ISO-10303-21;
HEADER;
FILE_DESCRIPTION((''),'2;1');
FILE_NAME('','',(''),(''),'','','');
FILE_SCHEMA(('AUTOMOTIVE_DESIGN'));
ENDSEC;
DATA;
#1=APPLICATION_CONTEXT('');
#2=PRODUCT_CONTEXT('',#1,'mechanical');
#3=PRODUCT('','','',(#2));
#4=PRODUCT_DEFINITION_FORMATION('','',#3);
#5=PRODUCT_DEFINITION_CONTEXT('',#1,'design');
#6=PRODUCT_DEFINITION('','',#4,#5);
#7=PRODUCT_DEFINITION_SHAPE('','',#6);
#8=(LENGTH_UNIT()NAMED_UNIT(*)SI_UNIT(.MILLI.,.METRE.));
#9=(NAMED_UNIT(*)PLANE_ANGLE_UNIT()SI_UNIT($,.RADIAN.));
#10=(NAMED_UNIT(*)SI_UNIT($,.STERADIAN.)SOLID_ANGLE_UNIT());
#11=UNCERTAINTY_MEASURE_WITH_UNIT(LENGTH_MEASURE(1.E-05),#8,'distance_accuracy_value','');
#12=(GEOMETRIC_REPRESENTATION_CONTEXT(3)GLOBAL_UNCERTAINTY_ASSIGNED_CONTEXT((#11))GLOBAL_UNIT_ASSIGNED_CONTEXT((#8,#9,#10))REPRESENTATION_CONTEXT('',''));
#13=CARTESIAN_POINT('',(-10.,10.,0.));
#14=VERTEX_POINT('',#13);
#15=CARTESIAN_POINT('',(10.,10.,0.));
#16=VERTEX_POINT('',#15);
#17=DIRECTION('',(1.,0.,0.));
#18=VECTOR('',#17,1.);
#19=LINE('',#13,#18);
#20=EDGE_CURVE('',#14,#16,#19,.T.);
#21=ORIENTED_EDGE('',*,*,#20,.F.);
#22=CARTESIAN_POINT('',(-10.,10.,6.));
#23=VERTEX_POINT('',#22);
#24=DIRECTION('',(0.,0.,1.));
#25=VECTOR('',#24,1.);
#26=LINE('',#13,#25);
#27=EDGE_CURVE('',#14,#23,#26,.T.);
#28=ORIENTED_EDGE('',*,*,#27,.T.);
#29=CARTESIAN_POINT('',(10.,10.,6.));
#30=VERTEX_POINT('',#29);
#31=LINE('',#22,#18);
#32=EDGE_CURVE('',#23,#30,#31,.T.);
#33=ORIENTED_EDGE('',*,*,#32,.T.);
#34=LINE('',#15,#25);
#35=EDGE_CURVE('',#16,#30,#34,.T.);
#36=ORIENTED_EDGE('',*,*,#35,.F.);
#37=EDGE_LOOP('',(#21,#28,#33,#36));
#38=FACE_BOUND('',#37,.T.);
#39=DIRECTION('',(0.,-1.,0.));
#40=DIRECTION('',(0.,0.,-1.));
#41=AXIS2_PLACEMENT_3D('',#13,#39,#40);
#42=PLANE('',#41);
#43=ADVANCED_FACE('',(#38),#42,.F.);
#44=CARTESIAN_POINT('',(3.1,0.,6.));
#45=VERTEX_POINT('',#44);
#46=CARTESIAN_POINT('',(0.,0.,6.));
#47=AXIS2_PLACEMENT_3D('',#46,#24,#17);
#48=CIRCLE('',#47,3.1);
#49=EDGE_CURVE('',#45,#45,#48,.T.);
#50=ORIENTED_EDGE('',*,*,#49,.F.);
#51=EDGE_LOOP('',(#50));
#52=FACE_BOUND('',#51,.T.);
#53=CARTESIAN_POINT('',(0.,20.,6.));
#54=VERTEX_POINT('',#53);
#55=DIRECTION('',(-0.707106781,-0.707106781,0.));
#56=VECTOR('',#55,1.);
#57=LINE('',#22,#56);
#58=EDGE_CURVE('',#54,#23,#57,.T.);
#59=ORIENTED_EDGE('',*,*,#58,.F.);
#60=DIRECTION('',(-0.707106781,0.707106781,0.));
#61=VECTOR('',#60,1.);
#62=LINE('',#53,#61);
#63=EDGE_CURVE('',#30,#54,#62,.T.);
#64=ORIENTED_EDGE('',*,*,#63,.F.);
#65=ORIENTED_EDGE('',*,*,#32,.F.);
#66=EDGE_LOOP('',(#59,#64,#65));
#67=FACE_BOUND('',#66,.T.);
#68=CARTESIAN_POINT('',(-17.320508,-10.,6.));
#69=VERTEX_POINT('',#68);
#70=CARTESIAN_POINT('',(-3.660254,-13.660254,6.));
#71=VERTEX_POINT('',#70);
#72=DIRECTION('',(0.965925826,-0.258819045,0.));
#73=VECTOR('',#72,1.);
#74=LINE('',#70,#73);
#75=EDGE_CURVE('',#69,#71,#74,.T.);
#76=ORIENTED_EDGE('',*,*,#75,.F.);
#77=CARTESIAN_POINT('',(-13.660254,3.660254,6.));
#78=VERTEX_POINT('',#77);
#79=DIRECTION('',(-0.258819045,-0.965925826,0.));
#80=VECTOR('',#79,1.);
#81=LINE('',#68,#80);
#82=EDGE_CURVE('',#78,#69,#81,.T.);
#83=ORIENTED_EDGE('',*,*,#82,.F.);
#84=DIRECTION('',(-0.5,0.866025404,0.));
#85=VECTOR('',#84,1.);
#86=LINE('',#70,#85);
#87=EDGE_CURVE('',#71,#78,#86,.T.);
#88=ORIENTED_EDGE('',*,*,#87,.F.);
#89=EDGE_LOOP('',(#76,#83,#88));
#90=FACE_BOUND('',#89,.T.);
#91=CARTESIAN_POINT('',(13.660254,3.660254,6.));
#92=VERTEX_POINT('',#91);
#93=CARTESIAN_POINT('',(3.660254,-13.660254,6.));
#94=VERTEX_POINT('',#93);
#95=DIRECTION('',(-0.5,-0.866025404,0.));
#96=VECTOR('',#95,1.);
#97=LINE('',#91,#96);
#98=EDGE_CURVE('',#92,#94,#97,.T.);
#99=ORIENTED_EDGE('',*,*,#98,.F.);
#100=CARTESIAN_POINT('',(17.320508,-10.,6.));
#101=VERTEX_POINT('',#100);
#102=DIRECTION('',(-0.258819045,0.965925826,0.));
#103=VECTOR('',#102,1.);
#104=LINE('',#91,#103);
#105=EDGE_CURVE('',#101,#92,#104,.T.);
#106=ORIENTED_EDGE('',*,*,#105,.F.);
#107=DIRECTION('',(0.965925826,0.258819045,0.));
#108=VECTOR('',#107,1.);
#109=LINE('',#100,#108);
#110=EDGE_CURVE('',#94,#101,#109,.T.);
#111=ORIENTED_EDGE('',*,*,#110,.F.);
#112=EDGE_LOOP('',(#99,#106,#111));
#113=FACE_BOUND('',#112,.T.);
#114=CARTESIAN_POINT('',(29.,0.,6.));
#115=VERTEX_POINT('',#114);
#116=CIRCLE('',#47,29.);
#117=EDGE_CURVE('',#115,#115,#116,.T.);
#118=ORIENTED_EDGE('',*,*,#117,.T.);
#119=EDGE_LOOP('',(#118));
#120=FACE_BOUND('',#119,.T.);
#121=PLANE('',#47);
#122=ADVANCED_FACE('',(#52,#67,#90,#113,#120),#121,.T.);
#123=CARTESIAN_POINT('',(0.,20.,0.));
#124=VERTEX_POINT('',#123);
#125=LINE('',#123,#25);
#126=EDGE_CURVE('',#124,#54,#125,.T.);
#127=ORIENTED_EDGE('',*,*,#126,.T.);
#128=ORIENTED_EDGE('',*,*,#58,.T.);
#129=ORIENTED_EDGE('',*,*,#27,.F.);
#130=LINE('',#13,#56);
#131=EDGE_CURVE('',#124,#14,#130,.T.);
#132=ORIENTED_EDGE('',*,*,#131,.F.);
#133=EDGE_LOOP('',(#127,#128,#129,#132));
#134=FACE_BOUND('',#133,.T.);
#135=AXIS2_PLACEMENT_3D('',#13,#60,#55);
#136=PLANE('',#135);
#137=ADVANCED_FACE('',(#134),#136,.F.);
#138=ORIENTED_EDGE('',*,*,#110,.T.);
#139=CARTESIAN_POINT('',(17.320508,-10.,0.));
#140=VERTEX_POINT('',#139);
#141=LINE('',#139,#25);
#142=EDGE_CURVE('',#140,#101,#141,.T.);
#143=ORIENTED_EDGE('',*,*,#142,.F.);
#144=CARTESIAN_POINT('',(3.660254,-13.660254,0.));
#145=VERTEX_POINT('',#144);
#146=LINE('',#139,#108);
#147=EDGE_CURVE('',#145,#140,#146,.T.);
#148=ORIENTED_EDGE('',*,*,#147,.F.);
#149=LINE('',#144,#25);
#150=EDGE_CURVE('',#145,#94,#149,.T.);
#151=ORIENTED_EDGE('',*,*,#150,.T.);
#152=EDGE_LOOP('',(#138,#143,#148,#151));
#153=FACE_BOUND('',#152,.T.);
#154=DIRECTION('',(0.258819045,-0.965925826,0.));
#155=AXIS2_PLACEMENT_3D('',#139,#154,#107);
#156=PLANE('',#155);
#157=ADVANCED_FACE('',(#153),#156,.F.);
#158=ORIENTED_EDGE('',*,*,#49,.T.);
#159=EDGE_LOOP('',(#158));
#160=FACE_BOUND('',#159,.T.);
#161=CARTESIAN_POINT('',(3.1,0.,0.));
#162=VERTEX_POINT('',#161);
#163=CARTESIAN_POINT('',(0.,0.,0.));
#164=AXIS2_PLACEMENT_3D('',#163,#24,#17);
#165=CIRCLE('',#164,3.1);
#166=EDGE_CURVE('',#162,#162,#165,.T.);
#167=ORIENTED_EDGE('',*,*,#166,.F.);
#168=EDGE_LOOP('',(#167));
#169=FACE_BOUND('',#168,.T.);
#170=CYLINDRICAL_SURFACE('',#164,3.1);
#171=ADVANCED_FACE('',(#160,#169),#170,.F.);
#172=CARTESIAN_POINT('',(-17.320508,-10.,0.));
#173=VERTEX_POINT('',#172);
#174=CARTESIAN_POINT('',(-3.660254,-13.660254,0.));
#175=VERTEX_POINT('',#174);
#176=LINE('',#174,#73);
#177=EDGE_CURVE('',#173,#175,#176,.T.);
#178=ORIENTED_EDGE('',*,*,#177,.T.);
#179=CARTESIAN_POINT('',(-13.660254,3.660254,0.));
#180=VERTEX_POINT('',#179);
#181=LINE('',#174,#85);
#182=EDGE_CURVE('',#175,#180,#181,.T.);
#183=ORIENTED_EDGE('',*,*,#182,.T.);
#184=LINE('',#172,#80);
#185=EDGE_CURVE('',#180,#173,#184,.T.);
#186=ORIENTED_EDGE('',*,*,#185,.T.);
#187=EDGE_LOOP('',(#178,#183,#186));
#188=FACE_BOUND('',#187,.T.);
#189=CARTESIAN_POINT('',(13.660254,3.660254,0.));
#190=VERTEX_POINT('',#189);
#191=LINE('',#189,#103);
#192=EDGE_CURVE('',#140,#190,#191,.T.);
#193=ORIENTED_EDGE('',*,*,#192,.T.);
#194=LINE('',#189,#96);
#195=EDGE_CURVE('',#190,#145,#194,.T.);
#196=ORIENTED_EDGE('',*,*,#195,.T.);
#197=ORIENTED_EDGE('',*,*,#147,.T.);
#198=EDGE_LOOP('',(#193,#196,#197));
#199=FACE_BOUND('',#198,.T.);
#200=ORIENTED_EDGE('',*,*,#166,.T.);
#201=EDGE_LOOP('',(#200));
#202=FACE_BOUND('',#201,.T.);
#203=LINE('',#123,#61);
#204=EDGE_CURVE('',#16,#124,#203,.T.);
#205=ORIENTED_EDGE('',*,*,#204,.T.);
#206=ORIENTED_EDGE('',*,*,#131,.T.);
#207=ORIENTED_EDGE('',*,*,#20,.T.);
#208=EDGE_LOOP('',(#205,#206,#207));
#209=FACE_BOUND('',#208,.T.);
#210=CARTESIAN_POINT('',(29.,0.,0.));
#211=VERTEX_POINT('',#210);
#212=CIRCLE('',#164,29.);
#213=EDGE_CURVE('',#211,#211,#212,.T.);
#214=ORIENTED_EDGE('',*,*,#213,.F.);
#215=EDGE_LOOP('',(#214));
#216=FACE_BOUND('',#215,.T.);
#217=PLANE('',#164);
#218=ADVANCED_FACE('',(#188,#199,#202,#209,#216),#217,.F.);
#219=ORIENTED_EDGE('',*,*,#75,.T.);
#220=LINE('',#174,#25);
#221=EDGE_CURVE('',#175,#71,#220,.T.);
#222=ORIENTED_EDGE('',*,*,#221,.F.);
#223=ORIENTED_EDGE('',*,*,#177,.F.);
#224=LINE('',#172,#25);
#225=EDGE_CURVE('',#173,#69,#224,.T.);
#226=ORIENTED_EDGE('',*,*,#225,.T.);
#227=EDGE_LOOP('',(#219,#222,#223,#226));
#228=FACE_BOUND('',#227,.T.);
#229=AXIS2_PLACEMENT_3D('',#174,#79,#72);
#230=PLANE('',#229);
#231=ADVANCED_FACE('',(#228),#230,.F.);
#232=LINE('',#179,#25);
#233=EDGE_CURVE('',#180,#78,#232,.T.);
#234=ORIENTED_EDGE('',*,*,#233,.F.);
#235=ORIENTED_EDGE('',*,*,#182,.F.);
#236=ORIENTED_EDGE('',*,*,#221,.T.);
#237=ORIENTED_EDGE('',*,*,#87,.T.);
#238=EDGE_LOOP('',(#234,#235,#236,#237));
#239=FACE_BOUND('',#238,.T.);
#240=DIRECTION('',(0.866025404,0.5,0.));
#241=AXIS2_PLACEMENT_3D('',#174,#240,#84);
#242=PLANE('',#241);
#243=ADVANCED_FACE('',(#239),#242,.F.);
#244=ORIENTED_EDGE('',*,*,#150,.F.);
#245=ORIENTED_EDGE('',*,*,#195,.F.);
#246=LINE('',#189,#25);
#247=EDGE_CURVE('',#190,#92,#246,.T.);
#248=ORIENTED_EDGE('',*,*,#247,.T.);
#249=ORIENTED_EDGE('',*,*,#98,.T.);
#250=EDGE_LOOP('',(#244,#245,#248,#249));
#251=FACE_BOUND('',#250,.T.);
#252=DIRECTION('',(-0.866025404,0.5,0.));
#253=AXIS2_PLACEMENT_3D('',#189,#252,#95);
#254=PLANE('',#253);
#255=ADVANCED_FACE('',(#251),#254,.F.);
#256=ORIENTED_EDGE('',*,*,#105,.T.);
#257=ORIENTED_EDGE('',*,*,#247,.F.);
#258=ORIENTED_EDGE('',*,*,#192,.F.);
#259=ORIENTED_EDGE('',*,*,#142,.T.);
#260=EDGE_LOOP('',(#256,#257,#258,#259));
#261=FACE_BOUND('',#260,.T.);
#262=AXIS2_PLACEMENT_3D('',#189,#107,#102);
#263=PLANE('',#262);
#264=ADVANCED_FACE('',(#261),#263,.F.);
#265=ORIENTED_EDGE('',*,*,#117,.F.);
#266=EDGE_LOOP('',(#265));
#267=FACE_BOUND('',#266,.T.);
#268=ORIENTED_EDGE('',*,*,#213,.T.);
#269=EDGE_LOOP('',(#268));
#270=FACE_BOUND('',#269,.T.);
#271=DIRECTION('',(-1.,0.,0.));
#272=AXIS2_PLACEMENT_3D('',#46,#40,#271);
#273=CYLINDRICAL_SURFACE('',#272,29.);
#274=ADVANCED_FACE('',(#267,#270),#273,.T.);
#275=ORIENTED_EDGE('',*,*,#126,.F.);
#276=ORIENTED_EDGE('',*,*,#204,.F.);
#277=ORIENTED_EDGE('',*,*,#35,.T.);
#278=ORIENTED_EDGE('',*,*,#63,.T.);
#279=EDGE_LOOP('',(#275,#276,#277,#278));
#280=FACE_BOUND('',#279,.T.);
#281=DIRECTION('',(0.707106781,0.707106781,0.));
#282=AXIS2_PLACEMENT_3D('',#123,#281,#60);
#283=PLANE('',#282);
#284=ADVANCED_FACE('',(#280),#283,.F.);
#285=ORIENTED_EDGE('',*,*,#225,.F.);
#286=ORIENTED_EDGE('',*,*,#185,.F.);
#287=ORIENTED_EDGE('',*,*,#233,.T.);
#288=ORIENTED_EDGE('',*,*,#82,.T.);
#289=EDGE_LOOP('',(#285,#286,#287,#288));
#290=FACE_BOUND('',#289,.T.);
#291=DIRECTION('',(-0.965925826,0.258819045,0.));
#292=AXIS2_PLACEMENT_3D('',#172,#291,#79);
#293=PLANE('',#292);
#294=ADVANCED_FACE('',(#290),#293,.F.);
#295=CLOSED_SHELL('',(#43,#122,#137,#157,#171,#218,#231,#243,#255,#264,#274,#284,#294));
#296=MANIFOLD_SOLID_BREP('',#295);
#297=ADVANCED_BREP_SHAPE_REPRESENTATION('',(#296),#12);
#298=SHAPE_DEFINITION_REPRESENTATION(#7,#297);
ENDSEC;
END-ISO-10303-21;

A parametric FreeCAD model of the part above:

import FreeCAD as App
import Part
import Sketcher

V = App.Vector
Q = App.Units.Quantity

doc = App.newDocument("Part")
body = doc.addObject("PartDesign::Body", "Body")

sketch1 = body.newObject("Sketcher::SketchObject", "Sketch")
sketch1.AttachmentSupport = (doc.getObject("XY_Plane"), [""])
sketch1.MapMode = "FlatFace"
sketch1.addGeometry(Part.Circle(V(0, 0, 0), V(0, 0, 1), 29), False)
sketch1.addConstraint([
    Sketcher.Constraint("Coincident", 0, 3, -1, 1),
    Sketcher.Constraint("Diameter", 0, 58.0),
])
pad1 = body.newObject("PartDesign::Pad", "Pad")
pad1.Profile = sketch1
pad1.Length = 6

sketch2 = body.newObject("Sketcher::SketchObject", "Sketch001")
sketch2.AttachmentSupport = (doc.getObject("XY_Plane"), [""])
sketch2.MapMode = "FlatFace"
sketch2.AttachmentOffset = App.Placement(V(0, 0, 6), App.Rotation())
sketch2.addGeometry(Part.Circle(V(0, 0, 0), V(0, 0, 1), 3.1), False)
sketch2.addConstraint([
    Sketcher.Constraint("Coincident", 0, 3, -1, 1),
    Sketcher.Constraint("Diameter", 0, 6.2),
])
pocket1 = body.newObject("PartDesign::Pocket", "Pocket")
pocket1.Profile = sketch2
pocket1.Type = "ThroughAll"

sketch3 = body.newObject("Sketcher::SketchObject", "Sketch002")
sketch3.AttachmentSupport = (doc.getObject("XY_Plane"), [""])
sketch3.MapMode = "FlatFace"
sketch3.AttachmentOffset = App.Placement(V(0, 0, 6), App.Rotation())
sketch3.addGeometry([
    Part.LineSegment(V(0, 20, 0), V(-10, 10, 0)),
    Part.LineSegment(V(-10, 10, 0), V(10, 10, 0)),
    Part.LineSegment(V(10, 10, 0), V(0, 20, 0)),
    Part.LineSegment(V(17.320508, -10, 0), V(13.660254, 3.660254, 0)),
    Part.LineSegment(V(13.660254, 3.660254, 0), V(3.660254, -13.660254, 0)),
    Part.LineSegment(V(3.660254, -13.660254, 0), V(17.320508, -10, 0)),
    Part.LineSegment(V(-17.320508, -10, 0), V(-3.660254, -13.660254, 0)),
    Part.LineSegment(V(-3.660254, -13.660254, 0), V(-13.660254, 3.660254, 0)),
    Part.LineSegment(V(-13.660254, 3.660254, 0), V(-17.320508, -10, 0)),
], False)
sketch3.addConstraint([
    Sketcher.Constraint("Coincident", 0, 2, 1, 1),
    Sketcher.Constraint("Coincident", 1, 2, 2, 1),
    Sketcher.Constraint("Coincident", 2, 2, 0, 1),
    Sketcher.Constraint("Coincident", 3, 2, 4, 1),
    Sketcher.Constraint("Coincident", 4, 2, 5, 1),
    Sketcher.Constraint("Coincident", 5, 2, 3, 1),
    Sketcher.Constraint("Coincident", 6, 2, 7, 1),
    Sketcher.Constraint("Coincident", 7, 2, 8, 1),
    Sketcher.Constraint("Coincident", 8, 2, 6, 1),
    Sketcher.Constraint("Horizontal", 1),
    Sketcher.Constraint("Symmetric", 4, 2, 6, 2, -2),
    Sketcher.Constraint("Symmetric", 3, 2, 7, 2, -2),
    Sketcher.Constraint("Symmetric", 5, 2, 8, 2, -2),
    Sketcher.Constraint("PointOnObject", 2, 2, -2),
    Sketcher.Constraint("Perpendicular", 0, 2),
    Sketcher.Constraint("Perpendicular", 3, 5),
    Sketcher.Constraint("Equal", 0, 2),
    Sketcher.Constraint("Equal", 2, 3),
    Sketcher.Constraint("Equal", 3, 5),
    Sketcher.Constraint("DistanceX", 1, 1, 1, 2, 20.0),
    Sketcher.Constraint("Angle", 3, Q("105 deg")),
    Sketcher.Constraint("DistanceY", -1, 1, 0, 2, 10.0),
    Sketcher.Constraint("DistanceY", 5, 2, -1, 1, 10.0),
    Sketcher.Constraint("DistanceX", -1, 1, 5, 2, 17.320508),
])
pocket2 = body.newObject("PartDesign::Pocket", "Pocket001")
pocket2.Profile = sketch3
pocket2.Type = "ThroughAll"

doc.recompute()
